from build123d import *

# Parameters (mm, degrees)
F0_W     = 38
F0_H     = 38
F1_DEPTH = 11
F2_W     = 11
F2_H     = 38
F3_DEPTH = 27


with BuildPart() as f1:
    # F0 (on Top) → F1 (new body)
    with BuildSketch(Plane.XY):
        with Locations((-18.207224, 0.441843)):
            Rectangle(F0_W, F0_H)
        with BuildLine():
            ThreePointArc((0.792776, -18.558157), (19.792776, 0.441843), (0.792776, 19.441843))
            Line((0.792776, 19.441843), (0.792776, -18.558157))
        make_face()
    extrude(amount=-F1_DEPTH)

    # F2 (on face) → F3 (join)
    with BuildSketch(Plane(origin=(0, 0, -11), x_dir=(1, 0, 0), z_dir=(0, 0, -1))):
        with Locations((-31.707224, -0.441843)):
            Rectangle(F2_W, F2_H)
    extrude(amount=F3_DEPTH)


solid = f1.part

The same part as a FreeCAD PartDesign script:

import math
import FreeCAD as App
import Part
import Sketcher

V = App.Vector
Q = App.Units.Quantity

doc = App.newDocument("Part")
params = doc.addObject("Spreadsheet::Sheet", "Params")
for row, (alias, value) in enumerate([
    ("sketch1_radius", "19 mm"),
    ("pad1_length", "11 mm"),
    ("sketch2_width", "11 mm"),
    ("sketch2_height", "38 mm"),
    ("pad2_length", "27 mm"),
], start=1):
    params.set(f"A{row}", alias)
    params.set(f"B{row}", "=" + value)
    params.setAlias(f"B{row}", alias)

body = doc.addObject("PartDesign::Body", "Body")

sketch1 = body.newObject("Sketcher::SketchObject", "Sketch")
sketch1.AttachmentSupport = (doc.getObject("XY_Plane"), [""])
sketch1.MapMode = "FlatFace"
sketch1.addGeometry(Part.LineSegment(V(-37.207224, 19.441843, 0), V(-37.207224, -18.558157, 0)), False)
sketch1.addGeometry(Part.LineSegment(V(-37.207224, -18.558157, 0), V(0.792776, -18.558157, 0)), False)
sketch1.addGeometry(Part.ArcOfCircle(Part.Circle(V(0.792776, 0.441843, 0), V(0, 0, 1), 19), math.radians(-90), math.radians(90)), False)
sketch1.addGeometry(Part.LineSegment(V(0.792776, 19.441843, 0), V(-37.207224, 19.441843, 0)), False)
sketch1.addConstraint(Sketcher.Constraint("Coincident", 0, 2, 1, 1))
sketch1.addConstraint(Sketcher.Constraint("Tangent", 1, 2, 2, 1))
sketch1.addConstraint(Sketcher.Constraint("Tangent", 2, 2, 3, 1))
sketch1.addConstraint(Sketcher.Constraint("Coincident", 3, 2, 0, 1))
sketch1.addConstraint(Sketcher.Constraint("Vertical", 0))
sketch1.addConstraint(Sketcher.Constraint("Horizontal", 1))
sketch1.addConstraint(Sketcher.Constraint("Horizontal", 3))
sketch1.addConstraint(Sketcher.Constraint("Equal", 3, 0))
sketch1.addConstraint(Sketcher.Constraint("Radius", 2, Q("19 mm")))
sketch1.addConstraint(Sketcher.Constraint("DistanceX", -1, 1, 2, 3, Q("0.792776 mm")))
sketch1.addConstraint(Sketcher.Constraint("DistanceY", -1, 1, 2, 3, Q("0.441843 mm")))
sketch1.setExpression("Constraints[8]", "Params.sketch1_radius")
pad1 = body.newObject("PartDesign::Pad", "Pad")
pad1.Profile = sketch1
pad1.setExpression("Length", "Params.pad1_length")
pad1.Reversed = True

sketch2 = body.newObject("Sketcher::SketchObject", "Sketch001")
sketch2.AttachmentSupport = (doc.getObject("XY_Plane"), [""])
sketch2.MapMode = "FlatFace"
sketch2.AttachmentOffset = App.Placement(V(0, 0, -11), App.Rotation())
sketch2.addGeometry(Part.LineSegment(V(-37.207224, -18.558157, 0), V(-37.207224, 19.441843, 0)), False)
sketch2.addGeometry(Part.LineSegment(V(-37.207224, 19.441843, 0), V(-26.207224, 19.441843, 0)), False)
sketch2.addGeometry(Part.LineSegment(V(-26.207224, 19.441843, 0), V(-26.207224, -18.558157, 0)), False)
sketch2.addGeometry(Part.LineSegment(V(-26.207224, -18.558157, 0), V(-37.207224, -18.558157, 0)), False)
sketch2.addConstraint(Sketcher.Constraint("Coincident", 0, 2, 1, 1))
sketch2.addConstraint(Sketcher.Constraint("Coincident", 1, 2, 2, 1))
sketch2.addConstraint(Sketcher.Constraint("Coincident", 2, 2, 3, 1))
sketch2.addConstraint(Sketcher.Constraint("Coincident", 3, 2, 0, 1))
sketch2.addConstraint(Sketcher.Constraint("Vertical", 0))
sketch2.addConstraint(Sketcher.Constraint("Horizontal", 1))
sketch2.addConstraint(Sketcher.Constraint("Vertical", 2))
sketch2.addConstraint(Sketcher.Constraint("Horizontal", 3))
sketch2.addConstraint(Sketcher.Constraint("DistanceX", 1, 1, 1, 2, Q("11 mm")))
sketch2.addConstraint(Sketcher.Constraint("DistanceY", 0, 1, 0, 2, Q("38 mm")))
sketch2.addConstraint(Sketcher.Constraint("DistanceX", 0, 2, -1, 1, Q("37.207224 mm")))
sketch2.addConstraint(Sketcher.Constraint("DistanceY", -1, 1, 0, 2, Q("19.441843 mm")))
sketch2.setExpression("Constraints[8]", "Params.sketch2_width")
sketch2.setExpression("Constraints[9]", "Params.sketch2_height")
pad2 = body.newObject("PartDesign::Pad", "Pad001")
pad2.Profile = sketch2
pad2.setExpression("Length", "Params.pad2_length")
pad2.Reversed = True

doc.recompute()
